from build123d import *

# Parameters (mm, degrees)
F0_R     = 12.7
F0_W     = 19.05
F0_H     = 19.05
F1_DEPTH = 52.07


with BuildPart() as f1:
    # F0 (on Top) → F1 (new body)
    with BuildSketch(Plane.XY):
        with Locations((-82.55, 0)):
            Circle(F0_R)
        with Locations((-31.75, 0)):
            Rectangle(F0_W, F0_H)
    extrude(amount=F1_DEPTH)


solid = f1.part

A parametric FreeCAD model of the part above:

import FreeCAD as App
import Part
import Sketcher
from FreeCAD import Vector
Q = App.Units.Quantity


def add_polygon(sketch, points):
    """Adds a closed chain of lines whose ends are joined by coincident constraints."""
    first, n = sketch.GeometryCount, len(points)
    for a, b in zip(points, points[1:] + points[:1]):
        sketch.addGeometry(Part.LineSegment(App.Vector(*a, 0), App.Vector(*b, 0)), False)
    for i in range(n):
        sketch.addConstraint(Sketcher.Constraint("Coincident", first + i, 2, first + (i + 1) % n, 1))

doc = App.newDocument("Part")
body = doc.addObject("PartDesign::Body", "Body")
body.AllowCompound = True

# Sketch on XY plane
sketch1 = body.newObject("Sketcher::SketchObject", "Sketch")
sketch1.AttachmentSupport = (doc.getObject("XY_Plane"), [""])
sketch1.MapMode = "FlatFace"
sketch1.addGeometry(Part.Circle(Vector(-82.55, 0, 0), Vector(0, 0, 1), 12.7), False)  # 0
add_polygon(sketch1, [(-41.275, 9.525), (-41.275, -9.525), (-22.225, -9.525), (-22.225, 9.525)])  # lines 1-4
sketch1.addConstraint(Sketcher.Constraint("Vertical", 1))
sketch1.addConstraint(Sketcher.Constraint("Horizontal", 2))
sketch1.addConstraint(Sketcher.Constraint("Vertical", 3))
sketch1.addConstraint(Sketcher.Constraint("Horizontal", 4))
sketch1.addConstraint(Sketcher.Constraint("PointOnObject", 0, 3, -1))
sketch1.addConstraint(Sketcher.Constraint("Equal", 4, 1))
sketch1.addConstraint(Sketcher.Constraint("Diameter", 0, Q("1 in")))
sketch1.addConstraint(Sketcher.Constraint("DistanceX", 2, 1, 2, 2, Q("0.75 in")))
sketch1.addConstraint(Sketcher.Constraint("DistanceX", 0, 3, -1, 1, Q("3.25 in")))
sketch1.addConstraint(Sketcher.Constraint("DistanceX", 1, 2, -1, 1, Q("1.625 in")))
sketch1.addConstraint(Sketcher.Constraint("DistanceY", 1, 2, -1, 1, Q("0.375 in")))
pad1 = body.newObject("PartDesign::Pad", "Pad")
pad1.Profile = sketch1
pad1.Length = Q("2.05 in")

doc.recompute()
